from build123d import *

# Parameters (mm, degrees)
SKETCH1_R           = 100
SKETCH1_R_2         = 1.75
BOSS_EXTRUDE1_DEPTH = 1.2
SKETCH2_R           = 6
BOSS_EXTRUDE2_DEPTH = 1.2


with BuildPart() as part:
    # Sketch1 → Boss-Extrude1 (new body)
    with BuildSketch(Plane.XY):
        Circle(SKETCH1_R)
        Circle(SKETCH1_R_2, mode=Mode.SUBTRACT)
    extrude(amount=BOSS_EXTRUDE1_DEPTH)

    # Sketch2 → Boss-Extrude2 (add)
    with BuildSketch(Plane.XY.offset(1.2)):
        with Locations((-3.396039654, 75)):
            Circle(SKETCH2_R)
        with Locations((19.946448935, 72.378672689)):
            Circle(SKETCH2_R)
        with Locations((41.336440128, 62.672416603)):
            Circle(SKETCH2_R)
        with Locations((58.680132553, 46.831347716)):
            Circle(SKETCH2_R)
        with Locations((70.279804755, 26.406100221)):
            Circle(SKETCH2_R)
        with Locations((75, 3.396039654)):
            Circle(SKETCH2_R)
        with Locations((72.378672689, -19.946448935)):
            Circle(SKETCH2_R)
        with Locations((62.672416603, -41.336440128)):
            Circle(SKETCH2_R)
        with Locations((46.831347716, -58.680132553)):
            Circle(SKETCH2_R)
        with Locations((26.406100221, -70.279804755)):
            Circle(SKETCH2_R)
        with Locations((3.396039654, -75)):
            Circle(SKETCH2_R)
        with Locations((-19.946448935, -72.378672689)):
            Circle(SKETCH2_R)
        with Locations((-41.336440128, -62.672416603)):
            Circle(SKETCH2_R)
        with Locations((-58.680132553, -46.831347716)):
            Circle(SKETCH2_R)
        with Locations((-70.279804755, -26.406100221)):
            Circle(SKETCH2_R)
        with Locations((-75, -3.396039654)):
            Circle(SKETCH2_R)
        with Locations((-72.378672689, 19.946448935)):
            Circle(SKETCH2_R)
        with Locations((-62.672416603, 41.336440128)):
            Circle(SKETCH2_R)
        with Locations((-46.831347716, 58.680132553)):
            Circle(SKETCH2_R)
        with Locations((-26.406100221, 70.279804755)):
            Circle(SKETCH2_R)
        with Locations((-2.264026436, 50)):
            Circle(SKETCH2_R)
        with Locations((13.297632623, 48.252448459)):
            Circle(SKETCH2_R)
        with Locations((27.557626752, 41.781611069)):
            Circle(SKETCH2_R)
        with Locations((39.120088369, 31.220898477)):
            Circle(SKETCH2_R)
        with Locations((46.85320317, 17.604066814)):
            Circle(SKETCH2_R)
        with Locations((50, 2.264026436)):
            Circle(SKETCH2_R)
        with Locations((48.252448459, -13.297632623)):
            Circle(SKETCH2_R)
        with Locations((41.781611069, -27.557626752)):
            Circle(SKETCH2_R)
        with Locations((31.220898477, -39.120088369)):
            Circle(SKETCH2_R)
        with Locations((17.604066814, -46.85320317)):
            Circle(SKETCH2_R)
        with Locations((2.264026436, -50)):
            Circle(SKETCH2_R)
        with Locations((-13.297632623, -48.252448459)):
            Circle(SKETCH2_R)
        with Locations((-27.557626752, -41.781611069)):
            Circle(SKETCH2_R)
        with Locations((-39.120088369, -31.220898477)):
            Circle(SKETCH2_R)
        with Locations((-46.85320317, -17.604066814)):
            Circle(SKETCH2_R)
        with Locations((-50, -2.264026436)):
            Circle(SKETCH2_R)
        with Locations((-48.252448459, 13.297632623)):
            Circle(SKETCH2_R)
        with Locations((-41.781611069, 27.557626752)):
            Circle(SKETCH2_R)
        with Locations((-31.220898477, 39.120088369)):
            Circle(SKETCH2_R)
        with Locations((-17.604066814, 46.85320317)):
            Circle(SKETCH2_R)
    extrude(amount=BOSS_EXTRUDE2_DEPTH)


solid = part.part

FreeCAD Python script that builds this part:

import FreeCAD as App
import Part
import Sketcher
from FreeCAD import Vector
Q = App.Units.Quantity

doc = App.newDocument("Part")
body = doc.addObject("PartDesign::Body", "Body")

# Sketch on XY plane
sketch1 = body.newObject("Sketcher::SketchObject", "Sketch")
sketch1.AttachmentSupport = (doc.getObject("XY_Plane"), [""])
sketch1.MapMode = "FlatFace"
sketch1.addGeometry([
    Part.Circle(Vector(0, 0, 0), Vector(0, 0, 1), 100),
    Part.Circle(Vector(0, 0, 0), Vector(0, 0, 1), 1.8),
], False)
sketch1.addConstraint([
    Sketcher.Constraint("Coincident", 0, 3, -1, 1),
    Sketcher.Constraint("Coincident", 1, 3, -1, 1),
    Sketcher.Constraint("Diameter", 0, Q("200 mm")),
    Sketcher.Constraint("Diameter", 1, Q("3.5 mm")),
])
pad1 = body.newObject("PartDesign::Pad", "Pad")
pad1.Profile = sketch1
pad1.Length = 1.2

# Sketch on XY plane
sketch2 = body.newObject("Sketcher::SketchObject", "Sketch001")
sketch2.AttachmentSupport = (doc.getObject("XY_Plane"), [""])
sketch2.MapMode = "FlatFace"
sketch2.AttachmentOffset = App.Placement(Vector(0, 0, 1.2), App.Rotation())
sketch2.addGeometry([
    Part.Circle(Vector(-3, 75, 0), Vector(0, 0, 1), 6),  # 0
    Part.Circle(Vector(20, 72, 0), Vector(0, 0, 1), 6),  # 1
    Part.Circle(Vector(41, 63, 0), Vector(0, 0, 1), 6),  # 2
    Part.Circle(Vector(59, 47, 0), Vector(0, 0, 1), 6),  # 3
    Part.Circle(Vector(70, 26, 0), Vector(0, 0, 1), 6),  # 4
    Part.Circle(Vector(75, 3, 0), Vector(0, 0, 1), 6),  # 5
    Part.Circle(Vector(72, -20, 0), Vector(0, 0, 1), 6),  # 6
    Part.Circle(Vector(63, -41, 0), Vector(0, 0, 1), 6),  # 7
    Part.Circle(Vector(47, -59, 0), Vector(0, 0, 1), 6),  # 8
    Part.Circle(Vector(26, -70, 0), Vector(0, 0, 1), 6),  # 9
    Part.Circle(Vector(3, -75, 0), Vector(0, 0, 1), 6),  # 10
    Part.Circle(Vector(-20, -72, 0), Vector(0, 0, 1), 6),  # 11
    Part.Circle(Vector(-41, -63, 0), Vector(0, 0, 1), 6),  # 12
    Part.Circle(Vector(-59, -47, 0), Vector(0, 0, 1), 6),  # 13
    Part.Circle(Vector(-70, -26, 0), Vector(0, 0, 1), 6),  # 14
    Part.Circle(Vector(-75, -3, 0), Vector(0, 0, 1), 6),  # 15
    Part.Circle(Vector(-72, 20, 0), Vector(0, 0, 1), 6),  # 16
    Part.Circle(Vector(-63, 41, 0), Vector(0, 0, 1), 6),  # 17
    Part.Circle(Vector(-47, 59, 0), Vector(0, 0, 1), 6),  # 18
    Part.Circle(Vector(-26, 70, 0), Vector(0, 0, 1), 6),  # 19
    Part.Circle(Vector(-2, 50, 0), Vector(0, 0, 1), 6),  # 20
    Part.Circle(Vector(13, 48, 0), Vector(0, 0, 1), 6),  # 21
    Part.Circle(Vector(28, 42, 0), Vector(0, 0, 1), 6),  # 22
    Part.Circle(Vector(39, 31, 0), Vector(0, 0, 1), 6),  # 23
    Part.Circle(Vector(47, 18, 0), Vector(0, 0, 1), 6),  # 24
    Part.Circle(Vector(50, 2, 0), Vector(0, 0, 1), 6),  # 25
    Part.Circle(Vector(48, -13, 0), Vector(0, 0, 1), 6),  # 26
    Part.Circle(Vector(42, -28, 0), Vector(0, 0, 1), 6),  # 27
    Part.Circle(Vector(31, -39, 0), Vector(0, 0, 1), 6),  # 28
    Part.Circle(Vector(18, -47, 0), Vector(0, 0, 1), 6),  # 29
    Part.Circle(Vector(2, -50, 0), Vector(0, 0, 1), 6),  # 30
    Part.Circle(Vector(-13, -48, 0), Vector(0, 0, 1), 6),  # 31
    Part.Circle(Vector(-28, -42, 0), Vector(0, 0, 1), 6),  # 32
    Part.Circle(Vector(-39, -31, 0), Vector(0, 0, 1), 6),  # 33
    Part.Circle(Vector(-47, -18, 0), Vector(0, 0, 1), 6),  # 34
    Part.Circle(Vector(-50, -2, 0), Vector(0, 0, 1), 6),  # 35
    Part.Circle(Vector(-48, 13, 0), Vector(0, 0, 1), 6),  # 36
    Part.Circle(Vector(-42, 28, 0), Vector(0, 0, 1), 6),  # 37
    Part.Circle(Vector(-31, 39, 0), Vector(0, 0, 1), 6),  # 38
    Part.Circle(Vector(-18, 47, 0), Vector(0, 0, 1), 6),  # 39
], False)
sketch2.addConstraint([
    Sketcher.Constraint("Equal", 0, 1),
    Sketcher.Constraint("Equal", 1, 2),
    Sketcher.Constraint("Equal", 2, 3),
    Sketcher.Constraint("Equal", 3, 4),
    Sketcher.Constraint("Equal", 4, 5),
    Sketcher.Constraint("Equal", 5, 6),
    Sketcher.Constraint("Equal", 6, 7),
    Sketcher.Constraint("Equal", 7, 8),
    Sketcher.Constraint("Equal", 8, 9),
    Sketcher.Constraint("Equal", 9, 10),
    Sketcher.Constraint("Equal", 10, 11),
    Sketcher.Constraint("Equal", 11, 12),
    Sketcher.Constraint("Equal", 12, 13),
    Sketcher.Constraint("Equal", 13, 14),
    Sketcher.Constraint("Equal", 14, 15),
    Sketcher.Constraint("Equal", 15, 16),
    Sketcher.Constraint("Equal", 16, 17),
    Sketcher.Constraint("Equal", 17, 18),
    Sketcher.Constraint("Equal", 18, 19),
    Sketcher.Constraint("Equal", 19, 20),
    Sketcher.Constraint("Equal", 20, 21),
    Sketcher.Constraint("Equal", 21, 22),
    Sketcher.Constraint("Equal", 22, 23),
    Sketcher.Constraint("Equal", 23, 24),
    Sketcher.Constraint("Equal", 24, 25),
    Sketcher.Constraint("Equal", 25, 26),
    Sketcher.Constraint("Equal", 26, 27),
    Sketcher.Constraint("Equal", 27, 28),
    Sketcher.Constraint("Equal", 28, 29),
    Sketcher.Constraint("Equal", 29, 30),
    Sketcher.Constraint("Equal", 30, 31),
    Sketcher.Constraint("Equal", 31, 32),
    Sketcher.Constraint("Equal", 32, 33),
    Sketcher.Constraint("Equal", 33, 34),
    Sketcher.Constraint("Equal", 34, 35),
    Sketcher.Constraint("Equal", 35, 36),
    Sketcher.Constraint("Equal", 36, 37),
    Sketcher.Constraint("Equal", 37, 38),
    Sketcher.Constraint("Equal", 38, 39),
    Sketcher.Constraint("Symmetric", 0, 3, 10, 3, -1, 1),
    Sketcher.Constraint("Symmetric", 1, 3, 11, 3, -1, 1),
    Sketcher.Constraint("Symmetric", 2, 3, 12, 3, -1, 1),
    Sketcher.Constraint("Symmetric", 3, 3, 13, 3, -1, 1),
    Sketcher.Constraint("Symmetric", 4, 3, 14, 3, -1, 1),
    Sketcher.Constraint("Symmetric", 5, 3, 15, 3, -1, 1),
    Sketcher.Constraint("Symmetric", 6, 3, 16, 3, -1, 1),
    Sketcher.Constraint("Symmetric", 7, 3, 17, 3, -1, 1),
    Sketcher.Constraint("Symmetric", 8, 3, 18, 3, -1, 1),
    Sketcher.Constraint("Symmetric", 9, 3, 19, 3, -1, 1),
    Sketcher.Constraint("Symmetric", 20, 3, 30, 3, -1, 1),
    Sketcher.Constraint("Symmetric", 21, 3, 31, 3, -1, 1),
    Sketcher.Constraint("Symmetric", 22, 3, 32, 3, -1, 1),
    Sketcher.Constraint("Symmetric", 23, 3, 33, 3, -1, 1),
    Sketcher.Constraint("Symmetric", 24, 3, 34, 3, -1, 1),
    Sketcher.Constraint("Symmetric", 25, 3, 35, 3, -1, 1),
    Sketcher.Constraint("Symmetric", 26, 3, 36, 3, -1, 1),
    Sketcher.Constraint("Symmetric", 27, 3, 37, 3, -1, 1),
    Sketcher.Constraint("Symmetric", 28, 3, 38, 3, -1, 1),
    Sketcher.Constraint("Symmetric", 29, 3, 39, 3, -1, 1),
    Sketcher.Constraint("Diameter", 0, Q("12 mm")),
    Sketcher.Constraint("DistanceY", -1, 1, 0, 3, Q("75 mm")),
    Sketcher.Constraint("DistanceX", -1, 1, 5, 3, Q("75 mm")),
    Sketcher.Constraint("DistanceY", -1, 1, 20, 3, Q("50 mm")),
    Sketcher.Constraint("DistanceX", -1, 1, 25, 3, Q("50 mm")),
    Sketcher.Constraint("DistanceY", -1, 1, 4, 3, Q("26.4061 mm")),
    Sketcher.Constraint("DistanceX", -1, 1, 9, 3, Q("26.4061 mm")),
    Sketcher.Constraint("DistanceY", -1, 1, 23, 3, Q("31.220898 mm")),
    Sketcher.Constraint("DistanceX", -1, 1, 28, 3, Q("31.220898 mm")),
    Sketcher.Constraint("DistanceX", 24, 3, 4, 3, Q("23.426602 mm")),
    Sketcher.Constraint("DistanceY", 26, 3, 24, 3, Q("30.901699 mm")),
    Sketcher.Constraint("DistanceY", 9, 3, 29, 3, Q("23.426602 mm")),
    Sketcher.Constraint("DistanceX", 31, 3, 29, 3, Q("30.901699 mm")),
    Sketcher.Constraint("DistanceX", 0, 3, -1, 1, Q("3.39604 mm")),
    Sketcher.Constraint("DistanceX", -1, 1, 1, 3, Q("19.946449 mm")),
    Sketcher.Constraint("DistanceX", -1, 1, 2, 3, Q("41.33644 mm")),
    Sketcher.Constraint("DistanceY", -1, 1, 5, 3, Q("3.39604 mm")),
    Sketcher.Constraint("DistanceY", 6, 3, -1, 1, Q("19.946449 mm")),
    Sketcher.Constraint("DistanceY", 7, 3, -1, 1, Q("41.33644 mm")),
    Sketcher.Constraint("DistanceY", -1, 1, 21, 3, Q("48.252448 mm")),
    Sketcher.Constraint("DistanceY", -1, 1, 22, 3, Q("41.781611 mm")),
    Sketcher.Constraint("DistanceX", -1, 1, 23, 3, Q("39.120088 mm")),
    Sketcher.Constraint("DistanceX", -1, 1, 26, 3, Q("48.252448 mm")),
    Sketcher.Constraint("DistanceX", -1, 1, 27, 3, Q("41.781611 mm")),
    Sketcher.Constraint("DistanceY", 28, 3, -1, 1, Q("39.120088 mm")),
    Sketcher.Constraint("DistanceY", 3, 3, 2, 3, Q("15.841069 mm")),
    Sketcher.Constraint("DistanceY", 5, 3, 3, 3, Q("43.435308 mm")),
    Sketcher.Constraint("DistanceX", 3, 3, 6, 3, Q("13.69854 mm")),
    Sketcher.Constraint("DistanceY", 6, 3, 1, 3, Q("92.325122 mm")),
    Sketcher.Constraint("DistanceX", 7, 3, 4, 3, Q("7.607388 mm")),
    Sketcher.Constraint("DistanceX", 8, 3, 7, 3, Q("15.841069 mm")),
    Sketcher.Constraint("DistanceY", 8, 3, 3, 3, Q("105.51148 mm")),
    Sketcher.Constraint("DistanceX", 10, 3, 8, 3, Q("43.435308 mm")),
    Sketcher.Constraint("DistanceX", 11, 3, 6, 3, Q("92.325122 mm")),
    Sketcher.Constraint("DistanceY", 9, 3, 12, 3, Q("7.607388 mm")),
    Sketcher.Constraint("DistanceX", 18, 3, 20, 3, Q("44.567321 mm")),
    Sketcher.Constraint("DistanceX", 20, 3, 21, 3, Q("15.561659 mm")),
    Sketcher.Constraint("DistanceX", 22, 3, 23, 3, Q("11.562462 mm")),
    Sketcher.Constraint("DistanceY", 24, 3, 23, 3, Q("13.616832 mm")),
    Sketcher.Constraint("DistanceY", 25, 3, 24, 3, Q("15.34004 mm")),
    Sketcher.Constraint("DistanceY", 28, 3, 27, 3, Q("11.562462 mm")),
])
pad2 = body.newObject("PartDesign::Pad", "Pad001")
pad2.Profile = sketch2
pad2.Length = 1.2

doc.recompute()
